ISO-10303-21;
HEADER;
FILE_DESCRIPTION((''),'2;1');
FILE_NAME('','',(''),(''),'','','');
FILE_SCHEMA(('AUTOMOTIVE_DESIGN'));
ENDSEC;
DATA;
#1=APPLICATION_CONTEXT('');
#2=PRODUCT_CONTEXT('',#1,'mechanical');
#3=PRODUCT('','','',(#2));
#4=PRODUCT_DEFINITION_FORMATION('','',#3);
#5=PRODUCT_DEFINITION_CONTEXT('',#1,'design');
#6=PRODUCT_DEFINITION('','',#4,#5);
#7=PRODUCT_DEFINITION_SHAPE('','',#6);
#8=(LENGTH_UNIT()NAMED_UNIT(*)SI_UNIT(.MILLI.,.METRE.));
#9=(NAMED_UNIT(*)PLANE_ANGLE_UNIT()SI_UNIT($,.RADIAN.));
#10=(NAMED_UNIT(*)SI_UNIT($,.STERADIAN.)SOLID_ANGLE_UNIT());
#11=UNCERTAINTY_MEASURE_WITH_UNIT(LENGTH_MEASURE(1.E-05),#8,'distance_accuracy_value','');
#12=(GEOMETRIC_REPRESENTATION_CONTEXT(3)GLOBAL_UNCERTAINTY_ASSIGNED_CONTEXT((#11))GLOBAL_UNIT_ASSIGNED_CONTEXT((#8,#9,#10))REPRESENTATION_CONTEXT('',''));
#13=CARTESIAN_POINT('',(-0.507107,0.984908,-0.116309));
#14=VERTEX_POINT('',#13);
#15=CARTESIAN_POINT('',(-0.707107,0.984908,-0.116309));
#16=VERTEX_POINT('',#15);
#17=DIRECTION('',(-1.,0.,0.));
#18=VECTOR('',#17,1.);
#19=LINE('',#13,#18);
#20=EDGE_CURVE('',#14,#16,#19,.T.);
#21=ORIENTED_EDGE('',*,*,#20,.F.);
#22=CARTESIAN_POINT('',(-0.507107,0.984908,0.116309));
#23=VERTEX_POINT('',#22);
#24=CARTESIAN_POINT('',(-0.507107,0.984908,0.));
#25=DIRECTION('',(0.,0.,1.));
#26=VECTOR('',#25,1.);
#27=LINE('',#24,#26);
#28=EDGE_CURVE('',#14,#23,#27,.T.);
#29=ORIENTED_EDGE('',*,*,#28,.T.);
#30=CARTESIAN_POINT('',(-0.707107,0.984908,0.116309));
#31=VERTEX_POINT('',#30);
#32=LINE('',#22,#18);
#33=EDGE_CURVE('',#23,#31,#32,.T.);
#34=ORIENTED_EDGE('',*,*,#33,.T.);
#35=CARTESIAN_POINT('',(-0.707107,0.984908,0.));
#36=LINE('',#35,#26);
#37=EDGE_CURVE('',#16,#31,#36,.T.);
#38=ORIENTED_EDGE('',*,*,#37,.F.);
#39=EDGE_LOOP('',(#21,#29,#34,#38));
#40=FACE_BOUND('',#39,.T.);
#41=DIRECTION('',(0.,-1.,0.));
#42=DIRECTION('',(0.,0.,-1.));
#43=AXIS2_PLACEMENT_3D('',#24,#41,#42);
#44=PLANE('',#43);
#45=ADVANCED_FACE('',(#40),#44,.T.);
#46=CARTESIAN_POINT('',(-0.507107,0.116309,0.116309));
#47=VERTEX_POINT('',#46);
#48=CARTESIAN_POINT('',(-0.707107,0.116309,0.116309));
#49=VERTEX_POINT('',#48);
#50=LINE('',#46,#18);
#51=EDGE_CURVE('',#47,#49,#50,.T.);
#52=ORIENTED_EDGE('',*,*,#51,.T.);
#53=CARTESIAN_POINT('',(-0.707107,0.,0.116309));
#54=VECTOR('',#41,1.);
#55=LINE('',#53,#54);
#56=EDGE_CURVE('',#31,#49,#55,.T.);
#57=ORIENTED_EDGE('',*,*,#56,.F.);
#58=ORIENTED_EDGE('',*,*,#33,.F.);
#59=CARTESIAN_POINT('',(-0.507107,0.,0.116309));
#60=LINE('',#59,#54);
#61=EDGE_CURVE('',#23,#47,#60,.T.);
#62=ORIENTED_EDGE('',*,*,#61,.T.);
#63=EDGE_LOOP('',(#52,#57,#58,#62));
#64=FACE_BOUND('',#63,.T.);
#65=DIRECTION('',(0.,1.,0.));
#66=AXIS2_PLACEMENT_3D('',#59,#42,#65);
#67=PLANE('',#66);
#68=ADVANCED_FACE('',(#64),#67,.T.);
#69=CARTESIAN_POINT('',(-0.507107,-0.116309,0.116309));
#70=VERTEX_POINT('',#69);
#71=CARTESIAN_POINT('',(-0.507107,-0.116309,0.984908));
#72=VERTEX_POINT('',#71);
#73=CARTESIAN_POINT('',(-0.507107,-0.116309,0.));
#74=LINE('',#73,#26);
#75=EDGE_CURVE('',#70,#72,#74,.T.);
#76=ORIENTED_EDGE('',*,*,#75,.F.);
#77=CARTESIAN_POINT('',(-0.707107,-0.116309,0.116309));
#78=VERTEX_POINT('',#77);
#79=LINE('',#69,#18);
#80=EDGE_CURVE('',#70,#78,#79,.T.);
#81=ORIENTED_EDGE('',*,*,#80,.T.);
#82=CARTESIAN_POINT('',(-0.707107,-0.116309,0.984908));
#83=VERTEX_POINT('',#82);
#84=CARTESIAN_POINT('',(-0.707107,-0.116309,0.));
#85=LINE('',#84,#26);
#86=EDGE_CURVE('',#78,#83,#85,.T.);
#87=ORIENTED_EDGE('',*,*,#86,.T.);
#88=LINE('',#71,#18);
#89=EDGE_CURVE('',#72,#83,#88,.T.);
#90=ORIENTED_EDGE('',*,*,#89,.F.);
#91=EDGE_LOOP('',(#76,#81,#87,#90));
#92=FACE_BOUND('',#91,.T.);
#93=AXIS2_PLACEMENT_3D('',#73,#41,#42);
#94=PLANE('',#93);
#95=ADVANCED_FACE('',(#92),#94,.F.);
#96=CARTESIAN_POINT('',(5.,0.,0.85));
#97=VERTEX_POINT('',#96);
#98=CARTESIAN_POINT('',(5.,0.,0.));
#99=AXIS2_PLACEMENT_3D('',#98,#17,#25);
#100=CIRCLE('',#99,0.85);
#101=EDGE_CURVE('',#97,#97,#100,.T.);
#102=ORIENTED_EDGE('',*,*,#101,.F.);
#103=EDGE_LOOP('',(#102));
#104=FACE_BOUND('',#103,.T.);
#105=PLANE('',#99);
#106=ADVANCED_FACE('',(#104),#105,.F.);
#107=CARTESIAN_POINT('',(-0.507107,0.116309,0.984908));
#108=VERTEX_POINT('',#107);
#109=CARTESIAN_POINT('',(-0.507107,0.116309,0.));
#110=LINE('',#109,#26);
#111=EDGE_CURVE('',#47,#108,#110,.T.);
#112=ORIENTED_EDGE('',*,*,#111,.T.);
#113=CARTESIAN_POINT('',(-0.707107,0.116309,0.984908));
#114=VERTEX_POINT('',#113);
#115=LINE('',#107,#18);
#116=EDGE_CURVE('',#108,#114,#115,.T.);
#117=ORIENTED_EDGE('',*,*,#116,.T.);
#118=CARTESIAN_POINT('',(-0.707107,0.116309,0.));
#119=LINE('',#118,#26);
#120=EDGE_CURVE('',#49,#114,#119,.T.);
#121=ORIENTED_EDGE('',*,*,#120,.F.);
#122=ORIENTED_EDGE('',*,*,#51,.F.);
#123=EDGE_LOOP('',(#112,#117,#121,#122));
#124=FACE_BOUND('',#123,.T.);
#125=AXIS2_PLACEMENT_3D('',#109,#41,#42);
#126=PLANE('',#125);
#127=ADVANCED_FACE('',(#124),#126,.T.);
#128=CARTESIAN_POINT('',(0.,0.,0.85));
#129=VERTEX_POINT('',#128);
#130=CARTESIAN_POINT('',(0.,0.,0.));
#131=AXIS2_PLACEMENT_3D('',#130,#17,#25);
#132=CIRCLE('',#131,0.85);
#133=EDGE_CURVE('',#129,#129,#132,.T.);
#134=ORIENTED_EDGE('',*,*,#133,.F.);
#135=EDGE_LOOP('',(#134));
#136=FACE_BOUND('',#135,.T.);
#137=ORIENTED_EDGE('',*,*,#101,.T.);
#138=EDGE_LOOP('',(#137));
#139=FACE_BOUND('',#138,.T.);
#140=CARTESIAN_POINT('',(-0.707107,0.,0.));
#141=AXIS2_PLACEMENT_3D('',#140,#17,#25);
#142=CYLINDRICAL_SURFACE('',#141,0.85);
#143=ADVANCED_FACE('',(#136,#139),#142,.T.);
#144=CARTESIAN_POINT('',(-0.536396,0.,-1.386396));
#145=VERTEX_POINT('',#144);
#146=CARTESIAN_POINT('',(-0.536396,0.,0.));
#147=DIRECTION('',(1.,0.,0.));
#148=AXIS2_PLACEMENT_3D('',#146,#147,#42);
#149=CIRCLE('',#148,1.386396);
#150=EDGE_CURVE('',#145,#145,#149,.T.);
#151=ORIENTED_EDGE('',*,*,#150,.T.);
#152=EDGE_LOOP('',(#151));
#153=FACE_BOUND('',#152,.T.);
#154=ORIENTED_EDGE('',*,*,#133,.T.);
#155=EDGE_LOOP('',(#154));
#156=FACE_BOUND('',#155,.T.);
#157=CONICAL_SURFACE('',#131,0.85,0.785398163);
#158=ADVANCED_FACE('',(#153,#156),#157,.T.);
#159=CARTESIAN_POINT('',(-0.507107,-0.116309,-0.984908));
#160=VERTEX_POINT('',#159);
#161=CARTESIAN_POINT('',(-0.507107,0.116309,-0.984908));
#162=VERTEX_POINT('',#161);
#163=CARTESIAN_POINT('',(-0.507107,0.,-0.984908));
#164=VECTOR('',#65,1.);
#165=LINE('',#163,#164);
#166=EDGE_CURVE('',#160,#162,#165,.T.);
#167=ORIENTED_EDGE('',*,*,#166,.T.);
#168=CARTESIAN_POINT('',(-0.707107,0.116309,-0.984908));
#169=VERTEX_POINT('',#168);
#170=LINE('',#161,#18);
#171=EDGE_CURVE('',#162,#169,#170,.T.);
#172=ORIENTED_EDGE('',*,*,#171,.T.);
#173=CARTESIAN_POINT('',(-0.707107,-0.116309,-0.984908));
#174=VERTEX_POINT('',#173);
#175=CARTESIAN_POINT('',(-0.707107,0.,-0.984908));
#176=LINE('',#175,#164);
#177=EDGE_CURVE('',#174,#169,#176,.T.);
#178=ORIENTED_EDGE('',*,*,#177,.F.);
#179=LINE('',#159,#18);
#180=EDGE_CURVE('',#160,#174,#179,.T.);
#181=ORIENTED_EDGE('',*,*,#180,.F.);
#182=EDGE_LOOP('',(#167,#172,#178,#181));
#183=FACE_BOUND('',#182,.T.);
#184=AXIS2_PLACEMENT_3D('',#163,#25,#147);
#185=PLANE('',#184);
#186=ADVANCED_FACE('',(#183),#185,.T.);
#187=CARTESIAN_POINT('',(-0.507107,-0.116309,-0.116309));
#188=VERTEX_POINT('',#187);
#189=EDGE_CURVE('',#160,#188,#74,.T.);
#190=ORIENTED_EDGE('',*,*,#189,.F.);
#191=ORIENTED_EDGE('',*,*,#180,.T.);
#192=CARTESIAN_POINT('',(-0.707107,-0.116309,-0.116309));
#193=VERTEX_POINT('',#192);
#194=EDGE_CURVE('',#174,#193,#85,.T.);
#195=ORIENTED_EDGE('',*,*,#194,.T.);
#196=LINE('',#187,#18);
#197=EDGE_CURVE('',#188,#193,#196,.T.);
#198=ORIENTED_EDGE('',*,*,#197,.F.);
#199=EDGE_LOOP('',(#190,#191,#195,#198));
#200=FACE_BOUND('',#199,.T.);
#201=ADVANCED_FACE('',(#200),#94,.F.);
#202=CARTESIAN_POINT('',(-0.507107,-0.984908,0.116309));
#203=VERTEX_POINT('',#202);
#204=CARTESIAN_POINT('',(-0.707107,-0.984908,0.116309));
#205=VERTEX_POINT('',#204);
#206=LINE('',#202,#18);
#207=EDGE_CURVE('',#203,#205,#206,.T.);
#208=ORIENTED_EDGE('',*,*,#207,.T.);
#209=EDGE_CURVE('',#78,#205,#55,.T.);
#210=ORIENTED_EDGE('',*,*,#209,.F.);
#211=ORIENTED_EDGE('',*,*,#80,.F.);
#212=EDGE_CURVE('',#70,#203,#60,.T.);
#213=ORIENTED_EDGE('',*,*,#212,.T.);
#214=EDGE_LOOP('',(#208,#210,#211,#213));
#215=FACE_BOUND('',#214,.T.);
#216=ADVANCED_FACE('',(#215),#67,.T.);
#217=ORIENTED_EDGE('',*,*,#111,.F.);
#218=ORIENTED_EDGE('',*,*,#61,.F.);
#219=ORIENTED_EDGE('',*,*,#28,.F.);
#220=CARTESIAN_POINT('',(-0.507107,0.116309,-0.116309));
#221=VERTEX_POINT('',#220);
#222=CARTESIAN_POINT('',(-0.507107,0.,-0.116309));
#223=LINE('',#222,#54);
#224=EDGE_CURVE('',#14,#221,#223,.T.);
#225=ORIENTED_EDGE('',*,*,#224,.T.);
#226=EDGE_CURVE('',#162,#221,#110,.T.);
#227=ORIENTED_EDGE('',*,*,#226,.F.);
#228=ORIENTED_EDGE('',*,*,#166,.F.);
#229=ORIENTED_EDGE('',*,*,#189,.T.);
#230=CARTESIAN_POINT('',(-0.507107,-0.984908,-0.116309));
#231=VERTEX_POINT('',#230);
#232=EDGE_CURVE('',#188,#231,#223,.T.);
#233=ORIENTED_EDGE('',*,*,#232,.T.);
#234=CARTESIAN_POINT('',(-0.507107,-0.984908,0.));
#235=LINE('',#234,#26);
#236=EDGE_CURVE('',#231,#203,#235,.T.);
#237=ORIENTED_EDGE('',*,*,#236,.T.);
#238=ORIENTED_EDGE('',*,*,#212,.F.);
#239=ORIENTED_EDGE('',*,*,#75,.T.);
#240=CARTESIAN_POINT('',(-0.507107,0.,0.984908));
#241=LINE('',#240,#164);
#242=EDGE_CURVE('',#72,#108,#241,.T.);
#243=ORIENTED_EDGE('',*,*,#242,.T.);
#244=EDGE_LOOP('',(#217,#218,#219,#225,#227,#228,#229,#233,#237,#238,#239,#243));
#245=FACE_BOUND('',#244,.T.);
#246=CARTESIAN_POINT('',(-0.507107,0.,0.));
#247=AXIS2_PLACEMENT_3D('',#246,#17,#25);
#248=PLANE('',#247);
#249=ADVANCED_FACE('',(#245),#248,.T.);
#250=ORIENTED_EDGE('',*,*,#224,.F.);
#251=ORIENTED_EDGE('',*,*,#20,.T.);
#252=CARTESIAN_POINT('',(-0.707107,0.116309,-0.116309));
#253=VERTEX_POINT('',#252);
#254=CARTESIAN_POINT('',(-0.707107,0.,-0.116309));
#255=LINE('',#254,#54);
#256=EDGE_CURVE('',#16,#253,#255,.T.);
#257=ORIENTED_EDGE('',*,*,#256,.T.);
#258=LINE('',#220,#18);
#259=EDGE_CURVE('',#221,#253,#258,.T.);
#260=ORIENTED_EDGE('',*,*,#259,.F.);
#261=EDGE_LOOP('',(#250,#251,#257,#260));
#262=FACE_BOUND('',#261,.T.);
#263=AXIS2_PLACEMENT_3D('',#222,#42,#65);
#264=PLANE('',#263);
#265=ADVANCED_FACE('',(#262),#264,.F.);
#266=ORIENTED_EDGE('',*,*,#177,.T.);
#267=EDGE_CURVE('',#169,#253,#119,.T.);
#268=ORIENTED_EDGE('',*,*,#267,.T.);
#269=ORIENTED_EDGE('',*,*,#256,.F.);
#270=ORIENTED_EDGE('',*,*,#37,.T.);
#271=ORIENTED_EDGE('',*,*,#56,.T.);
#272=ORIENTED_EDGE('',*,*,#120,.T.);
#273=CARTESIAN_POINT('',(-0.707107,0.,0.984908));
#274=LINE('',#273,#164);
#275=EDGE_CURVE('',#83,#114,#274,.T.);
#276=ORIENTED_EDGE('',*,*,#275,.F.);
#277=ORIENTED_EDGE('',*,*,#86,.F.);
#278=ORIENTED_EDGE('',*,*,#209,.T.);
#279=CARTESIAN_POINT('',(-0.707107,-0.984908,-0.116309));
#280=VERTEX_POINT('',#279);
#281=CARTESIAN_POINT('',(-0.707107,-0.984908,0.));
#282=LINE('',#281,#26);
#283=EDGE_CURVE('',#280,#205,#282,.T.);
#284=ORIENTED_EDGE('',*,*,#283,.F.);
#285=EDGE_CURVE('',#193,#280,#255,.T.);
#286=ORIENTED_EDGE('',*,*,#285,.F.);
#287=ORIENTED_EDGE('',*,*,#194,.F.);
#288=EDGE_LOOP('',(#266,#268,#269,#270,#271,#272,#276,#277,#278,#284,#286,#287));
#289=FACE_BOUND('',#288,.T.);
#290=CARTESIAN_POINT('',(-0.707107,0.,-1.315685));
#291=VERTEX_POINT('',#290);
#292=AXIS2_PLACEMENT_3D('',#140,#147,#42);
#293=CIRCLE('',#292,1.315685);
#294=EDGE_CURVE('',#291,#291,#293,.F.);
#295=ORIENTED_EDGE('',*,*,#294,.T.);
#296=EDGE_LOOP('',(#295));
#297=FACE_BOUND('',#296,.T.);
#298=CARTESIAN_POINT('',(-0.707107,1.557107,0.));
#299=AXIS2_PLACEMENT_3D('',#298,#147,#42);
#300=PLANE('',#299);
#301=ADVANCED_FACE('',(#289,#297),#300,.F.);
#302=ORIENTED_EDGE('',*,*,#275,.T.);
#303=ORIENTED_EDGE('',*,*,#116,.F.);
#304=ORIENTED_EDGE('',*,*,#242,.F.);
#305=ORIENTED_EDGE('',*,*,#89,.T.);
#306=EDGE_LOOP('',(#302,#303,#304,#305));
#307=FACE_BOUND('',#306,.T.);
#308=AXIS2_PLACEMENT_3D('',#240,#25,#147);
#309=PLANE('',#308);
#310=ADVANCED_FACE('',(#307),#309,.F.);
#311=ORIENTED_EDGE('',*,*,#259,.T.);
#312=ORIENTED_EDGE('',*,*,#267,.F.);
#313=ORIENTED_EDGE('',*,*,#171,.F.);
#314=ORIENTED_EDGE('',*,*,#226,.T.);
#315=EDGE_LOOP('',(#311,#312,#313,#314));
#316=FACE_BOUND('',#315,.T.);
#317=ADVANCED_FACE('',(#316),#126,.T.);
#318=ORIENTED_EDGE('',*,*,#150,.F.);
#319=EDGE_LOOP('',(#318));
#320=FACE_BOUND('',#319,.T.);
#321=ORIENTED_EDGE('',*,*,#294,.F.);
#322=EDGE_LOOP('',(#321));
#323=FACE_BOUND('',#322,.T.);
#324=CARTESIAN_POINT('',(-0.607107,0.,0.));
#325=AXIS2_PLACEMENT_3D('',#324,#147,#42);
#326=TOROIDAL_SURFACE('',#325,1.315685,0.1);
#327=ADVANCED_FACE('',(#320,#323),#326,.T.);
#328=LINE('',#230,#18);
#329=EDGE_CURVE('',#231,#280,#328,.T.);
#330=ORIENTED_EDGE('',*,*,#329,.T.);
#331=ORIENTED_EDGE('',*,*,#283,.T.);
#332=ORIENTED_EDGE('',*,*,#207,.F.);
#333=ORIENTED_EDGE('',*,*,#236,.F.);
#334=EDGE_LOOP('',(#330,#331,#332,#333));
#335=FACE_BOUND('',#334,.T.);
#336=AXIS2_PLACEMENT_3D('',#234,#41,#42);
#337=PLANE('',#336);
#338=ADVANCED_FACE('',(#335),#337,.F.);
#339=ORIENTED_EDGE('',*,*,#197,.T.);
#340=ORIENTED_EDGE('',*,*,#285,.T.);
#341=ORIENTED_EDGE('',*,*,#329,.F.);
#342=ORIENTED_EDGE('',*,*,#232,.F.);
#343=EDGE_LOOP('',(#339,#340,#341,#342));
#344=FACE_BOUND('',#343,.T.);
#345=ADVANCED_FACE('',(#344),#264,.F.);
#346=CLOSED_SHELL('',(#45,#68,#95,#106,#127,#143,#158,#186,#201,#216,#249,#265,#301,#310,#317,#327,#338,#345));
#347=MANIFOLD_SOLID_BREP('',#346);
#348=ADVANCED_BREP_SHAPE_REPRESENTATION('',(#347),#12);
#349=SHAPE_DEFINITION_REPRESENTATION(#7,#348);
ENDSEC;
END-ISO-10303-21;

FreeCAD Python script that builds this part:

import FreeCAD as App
import Part
import Sketcher
Q = App.Units.Quantity


def edges_at(feature, points):
    """Names of the edges that pass closest to the given points."""
    edges = feature.Shape.Edges
    near = lambda p: min(range(len(edges)), key=lambda i: edges[i].distToShape(Part.Vertex(*p))[0])
    return sorted({f"Edge{near(p) + 1}" for p in points})


def add_polygon(sketch, points):
    """Adds a closed chain of lines whose ends are joined by coincident constraints."""
    first, n = sketch.GeometryCount, len(points)
    for a, b in zip(points, points[1:] + points[:1]):
        sketch.addGeometry(Part.LineSegment(App.Vector(*a, 0), App.Vector(*b, 0)), False)
    for i in range(n):
        sketch.addConstraint(Sketcher.Constraint("Coincident", first + i, 2, first + (i + 1) % n, 1))

doc = App.newDocument("Part")
body = doc.addObject("PartDesign::Body", "Body")

# Sketch on XY plane
sketch1 = body.newObject("Sketcher::SketchObject", "Sketch")
sketch1.AttachmentSupport = (doc.getObject("XY_Plane"), [""])
sketch1.MapMode = "FlatFace"
add_polygon(sketch1, [(-0.707107, 0), (5, 0), (5, 0.85), (0, 0.85), (-0.707107, 1.557107)])  # lines 0-4
sketch1.addConstraint(Sketcher.Constraint("Horizontal", 0))
sketch1.addConstraint(Sketcher.Constraint("Vertical", 1))
sketch1.addConstraint(Sketcher.Constraint("Horizontal", 2))
sketch1.addConstraint(Sketcher.Constraint("Vertical", 4))
sketch1.addConstraint(Sketcher.Constraint("PointOnObject", 0, 2, -1))
sketch1.addConstraint(Sketcher.Constraint("PointOnObject", 2, 2, -2))
sketch1.addConstraint(Sketcher.Constraint("DistanceX", 2, 2, 2, 1, 5.0))
sketch1.addConstraint(Sketcher.Constraint("Angle", 3, Q("135 deg")))
sketch1.addConstraint(Sketcher.Constraint("Distance", 3, 1.0))
sketch1.addConstraint(Sketcher.Constraint("DistanceY", 1, 1, 1, 2, 0.85))
revolution = body.newObject("PartDesign::Revolution", "Revolution")
revolution.Profile = sketch1
revolution.ReferenceAxis = (sketch1, ["H_Axis"])
revolution.Angle = 360

# Sketch on YZ plane
sketch2 = body.newObject("Sketcher::SketchObject", "Sketch001")
sketch2.AttachmentSupport = (doc.getObject("YZ_Plane"), [""])
sketch2.MapMode = "FlatFace"
sketch2.AttachmentOffset = App.Placement(App.Vector(0, 0, -0.707107), App.Rotation())
add_polygon(sketch2, [(-0.984908, -0.116309), (-0.984908, 0.116309), (-0.116309, 0.116309), (-0.116309, 0.984908), (0.116309, 0.984908), (0.116309, 0.116309), (0.984908, 0.116309), (0.984908, -0.116309), (0.116309, -0.116309), (0.116309, -0.984908), (-0.116309, -0.984908), (-0.116309, -0.116309)])  # lines 0-11
sketch2.addConstraint(Sketcher.Constraint("Vertical", 0))
sketch2.addConstraint(Sketcher.Constraint("Horizontal", 1))
sketch2.addConstraint(Sketcher.Constraint("Vertical", 2))
sketch2.addConstraint(Sketcher.Constraint("Horizontal", 3))
sketch2.addConstraint(Sketcher.Constraint("Vertical", 4))
sketch2.addConstraint(Sketcher.Constraint("Horizontal", 5))
sketch2.addConstraint(Sketcher.Constraint("Vertical", 6))
sketch2.addConstraint(Sketcher.Constraint("Horizontal", 7))
sketch2.addConstraint(Sketcher.Constraint("Vertical", 8))
sketch2.addConstraint(Sketcher.Constraint("Horizontal", 9))
sketch2.addConstraint(Sketcher.Constraint("Vertical", 10))
sketch2.addConstraint(Sketcher.Constraint("Horizontal", 11))
sketch2.addConstraint(Sketcher.Constraint("Symmetric", 0, 2, 6, 2, -1, 1))
sketch2.addConstraint(Sketcher.Constraint("Symmetric", 2, 2, 8, 2, -1, 1))
sketch2.addConstraint(Sketcher.Constraint("Symmetric", 4, 2, 10, 2, -1, 1))
sketch2.addConstraint(Sketcher.Constraint("Symmetric", 1, 2, 4, 2, -2))
sketch2.addConstraint(Sketcher.Constraint("Equal", 9, 0))
sketch2.addConstraint(Sketcher.Constraint("Equal", 11, 2))
sketch2.addConstraint(Sketcher.Constraint("DistanceX", 1, 1, 1, 2, 0.868599))
sketch2.addConstraint(Sketcher.Constraint("DistanceX", 3, 1, 3, 2, 0.232619))
pocket1 = body.newObject("PartDesign::Pocket", "Pocket")
pocket1.Profile = sketch2
pocket1.Length = 0.2
pocket1.Reversed = True
doc.recompute()

fillet = body.newObject("PartDesign::Fillet", "Fillet")
fillet.Base = (pocket1, edges_at(pocket1, [(-0.707, -1.557, 0)]))
fillet.Radius = 0.1

doc.recompute()
